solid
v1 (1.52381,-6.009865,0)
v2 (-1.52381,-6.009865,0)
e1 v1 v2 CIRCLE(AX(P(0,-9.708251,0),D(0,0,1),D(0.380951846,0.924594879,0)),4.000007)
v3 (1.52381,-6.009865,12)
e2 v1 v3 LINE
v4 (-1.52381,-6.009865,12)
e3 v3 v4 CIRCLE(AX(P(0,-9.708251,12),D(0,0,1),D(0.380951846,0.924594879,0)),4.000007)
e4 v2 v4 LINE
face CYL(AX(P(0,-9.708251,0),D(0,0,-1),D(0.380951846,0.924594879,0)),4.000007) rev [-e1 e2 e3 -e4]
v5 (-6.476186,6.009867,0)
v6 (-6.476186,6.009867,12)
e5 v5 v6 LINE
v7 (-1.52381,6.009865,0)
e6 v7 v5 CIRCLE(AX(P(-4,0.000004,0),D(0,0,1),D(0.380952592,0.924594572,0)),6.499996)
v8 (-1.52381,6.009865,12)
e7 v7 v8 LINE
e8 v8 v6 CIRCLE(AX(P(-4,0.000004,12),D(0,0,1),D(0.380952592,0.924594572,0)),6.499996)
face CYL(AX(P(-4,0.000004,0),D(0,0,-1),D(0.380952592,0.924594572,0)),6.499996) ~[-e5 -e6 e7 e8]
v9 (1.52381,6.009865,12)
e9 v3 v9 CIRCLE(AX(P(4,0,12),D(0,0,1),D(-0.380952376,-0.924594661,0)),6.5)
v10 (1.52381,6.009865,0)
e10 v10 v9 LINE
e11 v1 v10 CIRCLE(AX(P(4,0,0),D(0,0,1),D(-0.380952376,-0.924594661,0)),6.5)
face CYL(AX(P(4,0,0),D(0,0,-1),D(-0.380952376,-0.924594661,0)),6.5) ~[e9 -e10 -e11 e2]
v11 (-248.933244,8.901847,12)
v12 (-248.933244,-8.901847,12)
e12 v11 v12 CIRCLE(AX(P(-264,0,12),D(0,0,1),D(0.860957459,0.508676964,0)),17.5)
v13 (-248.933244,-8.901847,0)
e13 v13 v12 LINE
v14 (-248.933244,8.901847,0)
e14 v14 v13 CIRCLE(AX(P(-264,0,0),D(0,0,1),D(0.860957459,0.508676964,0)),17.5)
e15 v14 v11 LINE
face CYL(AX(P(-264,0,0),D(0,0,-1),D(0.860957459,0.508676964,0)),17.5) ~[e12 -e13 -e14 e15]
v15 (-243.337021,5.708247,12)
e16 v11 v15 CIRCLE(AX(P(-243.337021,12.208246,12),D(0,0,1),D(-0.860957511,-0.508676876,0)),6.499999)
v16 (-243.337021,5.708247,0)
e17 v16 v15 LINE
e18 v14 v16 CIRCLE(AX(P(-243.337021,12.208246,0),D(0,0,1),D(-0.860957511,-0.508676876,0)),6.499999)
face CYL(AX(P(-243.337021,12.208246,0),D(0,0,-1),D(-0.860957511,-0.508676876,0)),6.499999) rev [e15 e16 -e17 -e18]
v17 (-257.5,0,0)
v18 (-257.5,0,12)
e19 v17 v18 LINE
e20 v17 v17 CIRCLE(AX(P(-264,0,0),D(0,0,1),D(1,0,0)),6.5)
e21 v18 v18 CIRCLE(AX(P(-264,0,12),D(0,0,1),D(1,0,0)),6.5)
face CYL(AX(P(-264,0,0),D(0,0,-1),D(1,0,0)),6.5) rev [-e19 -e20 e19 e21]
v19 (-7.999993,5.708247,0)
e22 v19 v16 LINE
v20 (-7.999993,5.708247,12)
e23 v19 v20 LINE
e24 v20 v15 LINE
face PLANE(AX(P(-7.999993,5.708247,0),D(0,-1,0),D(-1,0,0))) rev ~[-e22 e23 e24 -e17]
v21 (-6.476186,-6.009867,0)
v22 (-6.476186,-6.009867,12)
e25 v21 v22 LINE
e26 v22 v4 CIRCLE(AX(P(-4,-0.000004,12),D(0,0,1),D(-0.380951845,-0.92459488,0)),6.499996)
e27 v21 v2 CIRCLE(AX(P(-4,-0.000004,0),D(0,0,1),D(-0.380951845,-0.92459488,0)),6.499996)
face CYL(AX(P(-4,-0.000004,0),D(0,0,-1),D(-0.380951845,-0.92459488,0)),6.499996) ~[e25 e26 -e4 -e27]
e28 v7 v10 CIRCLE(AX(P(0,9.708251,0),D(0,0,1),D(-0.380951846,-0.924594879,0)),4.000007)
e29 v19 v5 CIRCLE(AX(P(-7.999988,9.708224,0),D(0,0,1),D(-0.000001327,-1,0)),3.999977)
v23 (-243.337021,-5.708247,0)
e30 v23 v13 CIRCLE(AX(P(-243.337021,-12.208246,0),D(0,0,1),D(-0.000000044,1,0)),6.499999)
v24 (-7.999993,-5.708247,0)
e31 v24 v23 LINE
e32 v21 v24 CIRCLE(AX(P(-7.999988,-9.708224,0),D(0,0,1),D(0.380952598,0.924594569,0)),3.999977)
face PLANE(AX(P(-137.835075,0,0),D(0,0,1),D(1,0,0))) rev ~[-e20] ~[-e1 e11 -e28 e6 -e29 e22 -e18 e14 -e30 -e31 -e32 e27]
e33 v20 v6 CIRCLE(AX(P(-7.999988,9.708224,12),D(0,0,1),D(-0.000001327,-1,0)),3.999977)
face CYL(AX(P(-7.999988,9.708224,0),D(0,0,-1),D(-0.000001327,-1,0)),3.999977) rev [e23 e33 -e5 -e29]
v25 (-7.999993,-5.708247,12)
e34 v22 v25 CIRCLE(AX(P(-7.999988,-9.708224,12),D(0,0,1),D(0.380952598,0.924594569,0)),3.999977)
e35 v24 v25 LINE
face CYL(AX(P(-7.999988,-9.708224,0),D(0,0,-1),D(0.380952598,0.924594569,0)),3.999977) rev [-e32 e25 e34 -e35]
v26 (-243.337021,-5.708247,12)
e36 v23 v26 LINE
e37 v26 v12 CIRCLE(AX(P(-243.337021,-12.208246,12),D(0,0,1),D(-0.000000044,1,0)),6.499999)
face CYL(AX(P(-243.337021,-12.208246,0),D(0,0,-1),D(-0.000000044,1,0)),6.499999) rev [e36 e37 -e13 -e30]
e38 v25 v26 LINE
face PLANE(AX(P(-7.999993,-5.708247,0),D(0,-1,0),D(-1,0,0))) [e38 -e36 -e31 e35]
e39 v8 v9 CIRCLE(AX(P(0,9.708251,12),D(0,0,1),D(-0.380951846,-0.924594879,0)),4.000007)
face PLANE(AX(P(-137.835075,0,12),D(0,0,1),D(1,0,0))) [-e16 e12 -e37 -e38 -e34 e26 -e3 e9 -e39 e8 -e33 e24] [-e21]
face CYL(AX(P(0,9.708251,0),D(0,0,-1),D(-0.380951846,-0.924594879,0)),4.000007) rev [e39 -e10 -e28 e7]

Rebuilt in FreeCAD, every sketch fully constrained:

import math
import FreeCAD as App
import Part
import Sketcher
Q = App.Units.Quantity

doc = App.newDocument("Part")
body = doc.addObject("PartDesign::Body", "Body")

sketch1 = body.newObject("Sketcher::SketchObject", "Sketch")
sketch1.AttachmentSupport = (doc.getObject("XY_Plane"), [""])
sketch1.MapMode = "FlatFace"
sketch1.addGeometry([
    Part.ArcOfCircle(Part.Circle(App.Vector(-4, 0, 0), App.Vector(0, 0, 1), 6.5), math.radians(68), math.radians(112)),
    Part.ArcOfCircle(Part.Circle(App.Vector(-8, 9.7, 0), App.Vector(0, 0, 1), 4), math.radians(-90), math.radians(-68)),
    Part.LineSegment(App.Vector(-8, 5.7, 0), App.Vector(-243.3, 5.7, 0)),
    Part.ArcOfCircle(Part.Circle(App.Vector(-243.3, 12.2, 0), App.Vector(0, 0, 1), 6.5), math.radians(-149), math.radians(-90)),
    Part.ArcOfCircle(Part.Circle(App.Vector(-264, 0, 0), App.Vector(0, 0, 1), 17.5), math.radians(31), math.radians(329)),
    Part.ArcOfCircle(Part.Circle(App.Vector(-243.3, -12.2, 0), App.Vector(0, 0, 1), 6.5), math.radians(90), math.radians(149)),
    Part.LineSegment(App.Vector(-243.3, -5.7, 0), App.Vector(-8, -5.7, 0)),
    Part.ArcOfCircle(Part.Circle(App.Vector(-8, -9.7, 0), App.Vector(0, 0, 1), 4), math.radians(68), math.radians(90)),
    Part.ArcOfCircle(Part.Circle(App.Vector(-4, 0, 0), App.Vector(0, 0, 1), 6.5), math.radians(-112), math.radians(-68)),
    Part.ArcOfCircle(Part.Circle(App.Vector(0, -9.7, 0), App.Vector(0, 0, 1), 4), math.radians(68), math.radians(112)),
    Part.ArcOfCircle(Part.Circle(App.Vector(4, 0, 0), App.Vector(0, 0, 1), 6.5), math.radians(-112), math.radians(112)),
    Part.ArcOfCircle(Part.Circle(App.Vector(0, 9.7, 0), App.Vector(0, 0, 1), 4), math.radians(-112), math.radians(-68)),
    Part.Circle(App.Vector(-264, 0, 0), App.Vector(0, 0, 1), 6.5),
], False)
sketch1.addConstraint([
    Sketcher.Constraint("Tangent", 0, 2, 1, 2),
    Sketcher.Constraint("Tangent", 1, 1, 2, 1),
    Sketcher.Constraint("Tangent", 2, 2, 3, 2),
    Sketcher.Constraint("Tangent", 3, 1, 4, 1),
    Sketcher.Constraint("Tangent", 4, 2, 5, 2),
    Sketcher.Constraint("Tangent", 5, 1, 6, 1),
    Sketcher.Constraint("Tangent", 6, 2, 7, 2),
    Sketcher.Constraint("Tangent", 7, 1, 8, 1),
    Sketcher.Constraint("Tangent", 8, 2, 9, 2),
    Sketcher.Constraint("Tangent", 9, 1, 10, 1),
    Sketcher.Constraint("Tangent", 10, 2, 11, 2),
    Sketcher.Constraint("Tangent", 11, 1, 0, 1),
    Sketcher.Constraint("Horizontal", 2),
    Sketcher.Constraint("Horizontal", 6),
    Sketcher.Constraint("Coincident", 8, 3, 0, 3),
    Sketcher.Constraint("Coincident", 12, 3, 4, 3),
    Sketcher.Constraint("Equal", 3, 5),
    Sketcher.Constraint("Equal", 1, 7),
    Sketcher.Constraint("Equal", 0, 8),
    Sketcher.Constraint("Equal", 5, 10),
    Sketcher.Constraint("Equal", 9, 11),
    Sketcher.Constraint("Equal", 10, 12),
    Sketcher.Constraint("Symmetric", 0, 3, 10, 3, -1, 1),
    Sketcher.Constraint("Symmetric", 8, 2, 9, 1, -2),
    Sketcher.Constraint("Symmetric", 3, 3, 5, 3, -1),
    Sketcher.Constraint("Horizontal", 7, 1, 8, 2),
    Sketcher.Constraint("Diameter", 12, Q("13 mm")),
    Sketcher.Constraint("Radius", 4, Q("17.5 mm")),
    Sketcher.Constraint("DistanceX", 0, 3, -1, 1, Q("4 mm")),
    Sketcher.Constraint("DistanceX", 4, 3, -1, 1, Q("264 mm")),
    Sketcher.Constraint("Radius", 1, Q("3.999977 mm")),
    Sketcher.Constraint("Radius", 9, Q("4.000007 mm")),
])
pad1 = body.newObject("PartDesign::Pad", "Pad")
pad1.Profile = sketch1
pad1.Length = 12

doc.recompute()
